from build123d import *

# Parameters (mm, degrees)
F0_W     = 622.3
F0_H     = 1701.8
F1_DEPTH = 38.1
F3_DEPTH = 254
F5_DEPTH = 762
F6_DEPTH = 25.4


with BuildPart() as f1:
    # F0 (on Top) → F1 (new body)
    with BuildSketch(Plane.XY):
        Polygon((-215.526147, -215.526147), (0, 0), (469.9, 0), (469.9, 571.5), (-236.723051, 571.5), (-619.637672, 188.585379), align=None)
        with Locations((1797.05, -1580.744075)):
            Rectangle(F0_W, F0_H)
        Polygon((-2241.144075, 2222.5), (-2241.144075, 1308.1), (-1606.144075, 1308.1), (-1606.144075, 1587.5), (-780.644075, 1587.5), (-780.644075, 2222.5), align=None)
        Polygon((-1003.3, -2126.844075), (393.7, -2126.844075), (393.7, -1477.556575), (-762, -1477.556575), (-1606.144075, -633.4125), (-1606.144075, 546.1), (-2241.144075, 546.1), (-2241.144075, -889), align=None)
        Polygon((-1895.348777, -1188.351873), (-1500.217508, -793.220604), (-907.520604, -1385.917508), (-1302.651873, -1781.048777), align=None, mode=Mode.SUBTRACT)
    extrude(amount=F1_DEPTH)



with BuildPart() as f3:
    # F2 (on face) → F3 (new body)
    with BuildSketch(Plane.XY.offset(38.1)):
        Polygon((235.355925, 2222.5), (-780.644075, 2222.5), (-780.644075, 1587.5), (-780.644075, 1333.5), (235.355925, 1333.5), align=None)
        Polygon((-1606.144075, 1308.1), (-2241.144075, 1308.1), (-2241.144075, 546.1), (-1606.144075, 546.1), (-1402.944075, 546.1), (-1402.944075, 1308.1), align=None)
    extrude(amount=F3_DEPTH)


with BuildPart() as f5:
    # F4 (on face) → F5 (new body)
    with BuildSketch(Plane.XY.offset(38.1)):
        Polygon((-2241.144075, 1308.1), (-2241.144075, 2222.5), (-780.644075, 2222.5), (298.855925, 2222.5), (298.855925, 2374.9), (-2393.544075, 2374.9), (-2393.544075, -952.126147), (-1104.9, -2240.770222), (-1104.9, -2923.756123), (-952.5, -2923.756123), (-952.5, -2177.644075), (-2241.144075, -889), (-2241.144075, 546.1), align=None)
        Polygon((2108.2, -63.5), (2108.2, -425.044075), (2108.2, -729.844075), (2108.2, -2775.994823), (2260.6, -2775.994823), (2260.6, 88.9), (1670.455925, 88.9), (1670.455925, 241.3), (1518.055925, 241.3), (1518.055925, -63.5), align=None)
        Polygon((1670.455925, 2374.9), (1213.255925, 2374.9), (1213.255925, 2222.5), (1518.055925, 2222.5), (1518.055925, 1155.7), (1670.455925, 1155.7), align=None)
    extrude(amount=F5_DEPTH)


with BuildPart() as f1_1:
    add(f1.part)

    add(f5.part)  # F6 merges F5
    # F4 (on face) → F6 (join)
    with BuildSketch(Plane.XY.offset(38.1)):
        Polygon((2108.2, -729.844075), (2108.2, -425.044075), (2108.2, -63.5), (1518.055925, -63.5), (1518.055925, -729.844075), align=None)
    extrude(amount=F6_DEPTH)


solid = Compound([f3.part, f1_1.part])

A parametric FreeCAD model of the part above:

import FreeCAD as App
import Part
import Sketcher
from FreeCAD import Vector
Q = App.Units.Quantity

doc = App.newDocument("Part")
body = doc.addObject("PartDesign::Body", "Body")
body.AllowCompound = True

sketch1 = body.newObject("Sketcher::SketchObject", "Sketch")
sketch1.AttachmentSupport = (doc.getObject("XY_Plane"), [""])
sketch1.MapMode = "FlatFace"
sketch1.addGeometry(Part.LineSegment(Vector(-216, -216, 0), Vector(0, 0, 0)), False)
sketch1.addGeometry(Part.LineSegment(Vector(0, 0, 0), Vector(470, 0, 0)), False)
sketch1.addGeometry(Part.LineSegment(Vector(470, 0, 0), Vector(470, 572, 0)), False)
sketch1.addGeometry(Part.LineSegment(Vector(470, 572, 0), Vector(-237, 572, 0)), False)
sketch1.addGeometry(Part.LineSegment(Vector(-237, 572, 0), Vector(-620, 189, 0)), False)
sketch1.addGeometry(Part.LineSegment(Vector(-620, 189, 0), Vector(-216, -216, 0)), False)
sketch1.addGeometry(Part.LineSegment(Vector(1486, -730, 0), Vector(1486, -2432, 0)), False)
sketch1.addGeometry(Part.LineSegment(Vector(1486, -2432, 0), Vector(2108, -2432, 0)), False)
sketch1.addGeometry(Part.LineSegment(Vector(2108, -2432, 0), Vector(2108, -730, 0)), False)
sketch1.addGeometry(Part.LineSegment(Vector(2108, -730, 0), Vector(1486, -730, 0)), False)
sketch1.addGeometry(Part.LineSegment(Vector(-2241, 2222, 0), Vector(-2241, 1308, 0)), False)
sketch1.addGeometry(Part.LineSegment(Vector(-2241, 1308, 0), Vector(-1606, 1308, 0)), False)
sketch1.addGeometry(Part.LineSegment(Vector(-1606, 1308, 0), Vector(-1606, 1588, 0)), False)
sketch1.addGeometry(Part.LineSegment(Vector(-1606, 1588, 0), Vector(-781, 1588, 0)), False)
sketch1.addGeometry(Part.LineSegment(Vector(-781, 1588, 0), Vector(-781, 2222, 0)), False)
sketch1.addGeometry(Part.LineSegment(Vector(-781, 2222, 0), Vector(-2241, 2222, 0)), False)
sketch1.addGeometry(Part.LineSegment(Vector(-1003, -2127, 0), Vector(394, -2127, 0)), False)
sketch1.addGeometry(Part.LineSegment(Vector(394, -2127, 0), Vector(394, -1478, 0)), False)
sketch1.addGeometry(Part.LineSegment(Vector(394, -1478, 0), Vector(-762, -1478, 0)), False)
sketch1.addGeometry(Part.LineSegment(Vector(-762, -1478, 0), Vector(-1606, -633, 0)), False)
sketch1.addGeometry(Part.LineSegment(Vector(-1606, -633, 0), Vector(-1606, 546, 0)), False)
sketch1.addGeometry(Part.LineSegment(Vector(-1606, 546, 0), Vector(-2241, 546, 0)), False)
sketch1.addGeometry(Part.LineSegment(Vector(-2241, 546, 0), Vector(-2241, -889, 0)), False)
sketch1.addGeometry(Part.LineSegment(Vector(-2241, -889, 0), Vector(-1003, -2127, 0)), False)
sketch1.addGeometry(Part.LineSegment(Vector(-1303, -1781, 0), Vector(-1895, -1188, 0)), False)
sketch1.addGeometry(Part.LineSegment(Vector(-1895, -1188, 0), Vector(-1500, -793, 0)), False)
sketch1.addGeometry(Part.LineSegment(Vector(-1500, -793, 0), Vector(-908, -1386, 0)), False)
sketch1.addGeometry(Part.LineSegment(Vector(-908, -1386, 0), Vector(-1303, -1781, 0)), False)
sketch1.addConstraint(Sketcher.Constraint("Coincident", 0, 2, 1, 1))
sketch1.addConstraint(Sketcher.Constraint("Coincident", 1, 2, 2, 1))
sketch1.addConstraint(Sketcher.Constraint("Coincident", 2, 2, 3, 1))
sketch1.addConstraint(Sketcher.Constraint("Coincident", 3, 2, 4, 1))
sketch1.addConstraint(Sketcher.Constraint("Coincident", 4, 2, 5, 1))
sketch1.addConstraint(Sketcher.Constraint("Coincident", 5, 2, 0, 1))
sketch1.addConstraint(Sketcher.Constraint("Coincident", 6, 2, 7, 1))
sketch1.addConstraint(Sketcher.Constraint("Coincident", 7, 2, 8, 1))
sketch1.addConstraint(Sketcher.Constraint("Coincident", 8, 2, 9, 1))
sketch1.addConstraint(Sketcher.Constraint("Coincident", 9, 2, 6, 1))
sketch1.addConstraint(Sketcher.Constraint("Coincident", 10, 2, 11, 1))
sketch1.addConstraint(Sketcher.Constraint("Coincident", 11, 2, 12, 1))
sketch1.addConstraint(Sketcher.Constraint("Coincident", 12, 2, 13, 1))
sketch1.addConstraint(Sketcher.Constraint("Coincident", 13, 2, 14, 1))
sketch1.addConstraint(Sketcher.Constraint("Coincident", 14, 2, 15, 1))
sketch1.addConstraint(Sketcher.Constraint("Coincident", 15, 2, 10, 1))
sketch1.addConstraint(Sketcher.Constraint("Coincident", 16, 2, 17, 1))
sketch1.addConstraint(Sketcher.Constraint("Coincident", 17, 2, 18, 1))
sketch1.addConstraint(Sketcher.Constraint("Coincident", 18, 2, 19, 1))
sketch1.addConstraint(Sketcher.Constraint("Coincident", 19, 2, 20, 1))
sketch1.addConstraint(Sketcher.Constraint("Coincident", 20, 2, 21, 1))
sketch1.addConstraint(Sketcher.Constraint("Coincident", 21, 2, 22, 1))
sketch1.addConstraint(Sketcher.Constraint("Coincident", 22, 2, 23, 1))
sketch1.addConstraint(Sketcher.Constraint("Coincident", 23, 2, 16, 1))
sketch1.addConstraint(Sketcher.Constraint("Coincident", 24, 2, 25, 1))
sketch1.addConstraint(Sketcher.Constraint("Coincident", 25, 2, 26, 1))
sketch1.addConstraint(Sketcher.Constraint("Coincident", 26, 2, 27, 1))
sketch1.addConstraint(Sketcher.Constraint("Coincident", 27, 2, 24, 1))
sketch1.addConstraint(Sketcher.Constraint("Horizontal", 1))
sketch1.addConstraint(Sketcher.Constraint("Vertical", 2))
sketch1.addConstraint(Sketcher.Constraint("Horizontal", 3))
sketch1.addConstraint(Sketcher.Constraint("Vertical", 6))
sketch1.addConstraint(Sketcher.Constraint("Horizontal", 7))
sketch1.addConstraint(Sketcher.Constraint("Vertical", 8))
sketch1.addConstraint(Sketcher.Constraint("Horizontal", 9))
sketch1.addConstraint(Sketcher.Constraint("Vertical", 10))
sketch1.addConstraint(Sketcher.Constraint("Horizontal", 11))
sketch1.addConstraint(Sketcher.Constraint("Vertical", 12))
sketch1.addConstraint(Sketcher.Constraint("Horizontal", 13))
sketch1.addConstraint(Sketcher.Constraint("Vertical", 14))
sketch1.addConstraint(Sketcher.Constraint("Horizontal", 15))
sketch1.addConstraint(Sketcher.Constraint("Horizontal", 16))
sketch1.addConstraint(Sketcher.Constraint("Vertical", 17))
sketch1.addConstraint(Sketcher.Constraint("Horizontal", 18))
sketch1.addConstraint(Sketcher.Constraint("Vertical", 20))
sketch1.addConstraint(Sketcher.Constraint("Horizontal", 21))
sketch1.addConstraint(Sketcher.Constraint("Vertical", 22))
sketch1.addConstraint(Sketcher.Constraint("Coincident", 0, 2, -1, 1))
sketch1.addConstraint(Sketcher.Constraint("Parallel", 0, 4))
sketch1.addConstraint(Sketcher.Constraint("Perpendicular", 4, 5))
sketch1.addConstraint(Sketcher.Constraint("Parallel", 5, 19))
sketch1.addConstraint(Sketcher.Constraint("Parallel", 19, 23))
sketch1.addConstraint(Sketcher.Constraint("Parallel", 23, 24))
sketch1.addConstraint(Sketcher.Constraint("Perpendicular", 24, 25))
sketch1.addConstraint(Sketcher.Constraint("Perpendicular", 25, 26))
sketch1.addConstraint(Sketcher.Constraint("Perpendicular", 26, 27))
sketch1.addConstraint(Sketcher.Constraint("Vertical", 12, 2, 19, 2))
sketch1.addConstraint(Sketcher.Constraint("Vertical", 15, 2, 21, 2))
sketch1.addConstraint(Sketcher.Constraint("Equal", 21, 14))
sketch1.addConstraint(Sketcher.Constraint("DistanceX", 11, 1, 11, 2, Q("25 in")))
sketch1.addConstraint(Sketcher.Constraint("DistanceX", 16, 1, 16, 2, Q("55 in")))
sketch1.addConstraint(Sketcher.Constraint("DistanceY", 6, 2, 6, 1, Q("67 in")))
sketch1.addConstraint(Sketcher.Constraint("DistanceY", 10, 2, 10, 1, Q("36 in")))
sketch1.addConstraint(Sketcher.Constraint("Distance", 0, Q("12 in")))
sketch1.addConstraint(Sketcher.Constraint("Distance", 19, Q("47 in")))
sketch1.addConstraint(Sketcher.Constraint("Distance", 24, Q("33 in")))
sketch1.addConstraint(Sketcher.Constraint("Distance", 25, Q("22 in")))
sketch1.addConstraint(Sketcher.Constraint("DistanceX", 1, 1, 1, 2, Q("18.5 in")))
sketch1.addConstraint(Sketcher.Constraint("DistanceX", 7, 1, 7, 2, Q("24.5 in")))
sketch1.addConstraint(Sketcher.Constraint("DistanceX", 13, 1, 13, 2, Q("32.5 in")))
sketch1.addConstraint(Sketcher.Constraint("DistanceX", 18, 2, 18, 1, Q("45.5 in")))
sketch1.addConstraint(Sketcher.Constraint("DistanceY", 2, 1, 2, 2, Q("22.5 in")))
sketch1.addConstraint(Sketcher.Constraint("DistanceY", 22, 2, 22, 1, Q("56.5 in")))
sketch1.addConstraint(Sketcher.Constraint("DistanceX", -1, 1, 7, 2, Q("83 in")))
sketch1.addConstraint(Sketcher.Constraint("DistanceX", 18, 2, -1, 1, Q("30 in")))
sketch1.addConstraint(Sketcher.Constraint("DistanceY", 22, 2, -1, 1, Q("35 in")))
sketch1.addConstraint(Sketcher.Constraint("Angle", 0, Q("45 deg")))
sketch1.addConstraint(Sketcher.Constraint("DistanceY", 3, 2, 10, 2, Q("29 in")))
sketch1.addConstraint(Sketcher.Constraint("DistanceY", 6, 2, 16, 2, Q("12 in")))
sketch1.addConstraint(Sketcher.Constraint("Distance", 5, Q("22.5 in")))
sketch1.addConstraint(Sketcher.Constraint("DistanceY", 17, 1, 17, 2, Q("25.5625 in")))
sketch1.addConstraint(Sketcher.Constraint("DistanceX", 22, 2, 24, 2, Q("345.795298 mm")))
sketch1.addConstraint(Sketcher.Constraint("DistanceY", 18, 2, 24, 2, Q("289.204702 mm")))
pad1 = body.newObject("PartDesign::Pad", "Pad")
pad1.Profile = sketch1
pad1.Length = Q("1.5 in")
body2 = doc.addObject("PartDesign::Body", "Body001")
body2.AllowCompound = True

sketch2 = body2.newObject("Sketcher::SketchObject", "Sketch001")
sketch2.AttachmentSupport = (doc.getObject("XY_Plane001"), [""])
sketch2.MapMode = "FlatFace"
sketch2.AttachmentOffset = App.Placement(Vector(0, 0, 1.5 * 25.4), App.Rotation())
sketch2.addGeometry(Part.LineSegment(Vector(235, 2222, 0), Vector(-781, 2222, 0)), False)
sketch2.addGeometry(Part.LineSegment(Vector(-781, 2222, 0), Vector(-781, 1334, 0)), False)
sketch2.addGeometry(Part.LineSegment(Vector(-781, 1334, 0), Vector(235, 1334, 0)), False)
sketch2.addGeometry(Part.LineSegment(Vector(235, 1334, 0), Vector(235, 2222, 0)), False)
sketch2.addGeometry(Part.LineSegment(Vector(-2241, 1308, 0), Vector(-2241, 546, 0)), False)
sketch2.addGeometry(Part.LineSegment(Vector(-2241, 546, 0), Vector(-1403, 546, 0)), False)
sketch2.addGeometry(Part.LineSegment(Vector(-1403, 546, 0), Vector(-1403, 1308, 0)), False)
sketch2.addGeometry(Part.LineSegment(Vector(-1403, 1308, 0), Vector(-2241, 1308, 0)), False)
sketch2.addConstraint(Sketcher.Constraint("Coincident", 0, 2, 1, 1))
sketch2.addConstraint(Sketcher.Constraint("Coincident", 1, 2, 2, 1))
sketch2.addConstraint(Sketcher.Constraint("Coincident", 2, 2, 3, 1))
sketch2.addConstraint(Sketcher.Constraint("Coincident", 3, 2, 0, 1))
sketch2.addConstraint(Sketcher.Constraint("Coincident", 4, 2, 5, 1))
sketch2.addConstraint(Sketcher.Constraint("Coincident", 5, 2, 6, 1))
sketch2.addConstraint(Sketcher.Constraint("Coincident", 6, 2, 7, 1))
sketch2.addConstraint(Sketcher.Constraint("Coincident", 7, 2, 4, 1))
sketch2.addConstraint(Sketcher.Constraint("Horizontal", 0))
sketch2.addConstraint(Sketcher.Constraint("Vertical", 1))
sketch2.addConstraint(Sketcher.Constraint("Horizontal", 2))
sketch2.addConstraint(Sketcher.Constraint("Vertical", 3))
sketch2.addConstraint(Sketcher.Constraint("Vertical", 4))
sketch2.addConstraint(Sketcher.Constraint("Horizontal", 5))
sketch2.addConstraint(Sketcher.Constraint("Vertical", 6))
sketch2.addConstraint(Sketcher.Constraint("Horizontal", 7))
sketch2.addConstraint(Sketcher.Constraint("DistanceX", 0, 2, 0, 1, Q("40 in")))
sketch2.addConstraint(Sketcher.Constraint("DistanceX", 5, 1, 5, 2, Q("33 in")))
sketch2.addConstraint(Sketcher.Constraint("DistanceY", 1, 2, 1, 1, Q("35 in")))
sketch2.addConstraint(Sketcher.Constraint("DistanceY", 4, 2, 4, 1, Q("30 in")))
sketch2.addConstraint(Sketcher.Constraint("DistanceY", 4, 2, 1, 2, Q("31 in")))
sketch2.addConstraint(Sketcher.Constraint("DistanceY", -1, 1, 0, 2, Q("87.5 in")))
sketch2.addConstraint(Sketcher.Constraint("DistanceX", 4, 2, 1, 2, Q("57.5 in")))
sketch2.addConstraint(Sketcher.Constraint("DistanceX", 0, 2, -1, 1, Q("780.644075 mm")))
pad2 = body2.newObject("PartDesign::Pad", "Pad001")
pad2.Profile = sketch2
pad2.Length = Q("10 in")
body3 = doc.addObject("PartDesign::Body", "Body002")
body3.AllowCompound = True

sketch3 = body3.newObject("Sketcher::SketchObject", "Sketch002")
sketch3.AttachmentSupport = (doc.getObject("XY_Plane002"), [""])
sketch3.MapMode = "FlatFace"
sketch3.AttachmentOffset = App.Placement(Vector(0, 0, 1.5 * 25.4), App.Rotation())
sketch3.addGeometry(Part.LineSegment(Vector(-2241, 2222, 0), Vector(299, 2222, 0)), False)
sketch3.addGeometry(Part.LineSegment(Vector(299, 2222, 0), Vector(299, 2375, 0)), False)
sketch3.addGeometry(Part.LineSegment(Vector(299, 2375, 0), Vector(-2394, 2375, 0)), False)
sketch3.addGeometry(Part.LineSegment(Vector(-2394, 2375, 0), Vector(-2394, -952, 0)), False)
sketch3.addGeometry(Part.LineSegment(Vector(-2394, -952, 0), Vector(-1105, -2241, 0)), False)
sketch3.addGeometry(Part.LineSegment(Vector(-1105, -2241, 0), Vector(-1105, -2924, 0)), False)
sketch3.addGeometry(Part.LineSegment(Vector(-1105, -2924, 0), Vector(-952, -2924, 0)), False)
sketch3.addGeometry(Part.LineSegment(Vector(-952, -2924, 0), Vector(-952, -2178, 0)), False)
sketch3.addGeometry(Part.LineSegment(Vector(-952, -2178, 0), Vector(-2241, -889, 0)), False)
sketch3.addGeometry(Part.LineSegment(Vector(-2241, -889, 0), Vector(-2241, 2222, 0)), False)
sketch3.addGeometry(Part.LineSegment(Vector(2108, -64, 0), Vector(2108, -2776, 0)), False)
sketch3.addGeometry(Part.LineSegment(Vector(2108, -2776, 0), Vector(2261, -2776, 0)), False)
sketch3.addGeometry(Part.LineSegment(Vector(2261, -2776, 0), Vector(2261, 89, 0)), False)
sketch3.addGeometry(Part.LineSegment(Vector(2261, 89, 0), Vector(1670, 89, 0)), False)
sketch3.addGeometry(Part.LineSegment(Vector(1670, 89, 0), Vector(1670, 241, 0)), False)
sketch3.addGeometry(Part.LineSegment(Vector(1670, 241, 0), Vector(1518, 241, 0)), False)
sketch3.addGeometry(Part.LineSegment(Vector(1518, 241, 0), Vector(1518, -64, 0)), False)
sketch3.addGeometry(Part.LineSegment(Vector(1518, -64, 0), Vector(2108, -64, 0)), False)
sketch3.addGeometry(Part.LineSegment(Vector(1670, 2375, 0), Vector(1213, 2375, 0)), False)
sketch3.addGeometry(Part.LineSegment(Vector(1213, 2375, 0), Vector(1213, 2222, 0)), False)
sketch3.addGeometry(Part.LineSegment(Vector(1213, 2222, 0), Vector(1518, 2222, 0)), False)
sketch3.addGeometry(Part.LineSegment(Vector(1518, 2222, 0), Vector(1518, 1156, 0)), False)
sketch3.addGeometry(Part.LineSegment(Vector(1518, 1156, 0), Vector(1670, 1156, 0)), False)
sketch3.addGeometry(Part.LineSegment(Vector(1670, 1156, 0), Vector(1670, 2375, 0)), False)
sketch3.addConstraint(Sketcher.Constraint("Coincident", 0, 2, 1, 1))
sketch3.addConstraint(Sketcher.Constraint("Coincident", 1, 2, 2, 1))
sketch3.addConstraint(Sketcher.Constraint("Coincident", 2, 2, 3, 1))
sketch3.addConstraint(Sketcher.Constraint("Coincident", 3, 2, 4, 1))
sketch3.addConstraint(Sketcher.Constraint("Coincident", 4, 2, 5, 1))
sketch3.addConstraint(Sketcher.Constraint("Coincident", 5, 2, 6, 1))
sketch3.addConstraint(Sketcher.Constraint("Coincident", 6, 2, 7, 1))
sketch3.addConstraint(Sketcher.Constraint("Coincident", 7, 2, 8, 1))
sketch3.addConstraint(Sketcher.Constraint("Coincident", 8, 2, 9, 1))
sketch3.addConstraint(Sketcher.Constraint("Coincident", 9, 2, 0, 1))
sketch3.addConstraint(Sketcher.Constraint("Coincident", 10, 2, 11, 1))
sketch3.addConstraint(Sketcher.Constraint("Coincident", 11, 2, 12, 1))
sketch3.addConstraint(Sketcher.Constraint("Coincident", 12, 2, 13, 1))
sketch3.addConstraint(Sketcher.Constraint("Coincident", 13, 2, 14, 1))
sketch3.addConstraint(Sketcher.Constraint("Coincident", 14, 2, 15, 1))
sketch3.addConstraint(Sketcher.Constraint("Coincident", 15, 2, 16, 1))
sketch3.addConstraint(Sketcher.Constraint("Coincident", 16, 2, 17, 1))
sketch3.addConstraint(Sketcher.Constraint("Coincident", 17, 2, 10, 1))
sketch3.addConstraint(Sketcher.Constraint("Coincident", 18, 2, 19, 1))
sketch3.addConstraint(Sketcher.Constraint("Coincident", 19, 2, 20, 1))
sketch3.addConstraint(Sketcher.Constraint("Coincident", 20, 2, 21, 1))
sketch3.addConstraint(Sketcher.Constraint("Coincident", 21, 2, 22, 1))
sketch3.addConstraint(Sketcher.Constraint("Coincident", 22, 2, 23, 1))
sketch3.addConstraint(Sketcher.Constraint("Coincident", 23, 2, 18, 1))
sketch3.addConstraint(Sketcher.Constraint("Horizontal", 0))
sketch3.addConstraint(Sketcher.Constraint("Vertical", 1))
sketch3.addConstraint(Sketcher.Constraint("Horizontal", 2))
sketch3.addConstraint(Sketcher.Constraint("Vertical", 3))
sketch3.addConstraint(Sketcher.Constraint("Vertical", 5))
sketch3.addConstraint(Sketcher.Constraint("Horizontal", 6))
sketch3.addConstraint(Sketcher.Constraint("Vertical", 7))
sketch3.addConstraint(Sketcher.Constraint("Vertical", 9))
sketch3.addConstraint(Sketcher.Constraint("Vertical", 10))
sketch3.addConstraint(Sketcher.Constraint("Horizontal", 11))
sketch3.addConstraint(Sketcher.Constraint("Vertical", 12))
sketch3.addConstraint(Sketcher.Constraint("Horizontal", 13))
sketch3.addConstraint(Sketcher.Constraint("Vertical", 14))
sketch3.addConstraint(Sketcher.Constraint("Horizontal", 15))
sketch3.addConstraint(Sketcher.Constraint("Vertical", 16))
sketch3.addConstraint(Sketcher.Constraint("Horizontal", 17))
sketch3.addConstraint(Sketcher.Constraint("Horizontal", 18))
sketch3.addConstraint(Sketcher.Constraint("Vertical", 19))
sketch3.addConstraint(Sketcher.Constraint("Horizontal", 20))
sketch3.addConstraint(Sketcher.Constraint("Vertical", 21))
sketch3.addConstraint(Sketcher.Constraint("Horizontal", 22))
sketch3.addConstraint(Sketcher.Constraint("Vertical", 23))
sketch3.addConstraint(Sketcher.Constraint("Parallel", 4, 8))
sketch3.addConstraint(Sketcher.Constraint("Horizontal", 2, 2, 18, 2))
sketch3.addConstraint(Sketcher.Constraint("Horizontal", 9, 2, 19, 2))
sketch3.addConstraint(Sketcher.Constraint("Vertical", 16, 2, 20, 2))
sketch3.addConstraint(Sketcher.Constraint("Vertical", 14, 2, 22, 2))
sketch3.addConstraint(Sketcher.Constraint("Equal", 6, 11))
sketch3.addConstraint(Sketcher.Constraint("Equal", 11, 15))
sketch3.addConstraint(Sketcher.Constraint("Equal", 22, 1))
sketch3.addConstraint(Sketcher.Constraint("Equal", 1, 14))
sketch3.addConstraint(Sketcher.Constraint("Equal", 20, 16))
sketch3.addConstraint(Sketcher.Constraint("Equal", 4, 8))
sketch3.addConstraint(Sketcher.Constraint("DistanceX", 0, 1, 0, 2, Q("100 in")))
sketch3.addConstraint(Sketcher.Constraint("DistanceX", 2, 2, 2, 1, Q("106 in")))
sketch3.addConstraint(Sketcher.Constraint("DistanceX", 18, 2, 18, 1, Q("18 in")))
sketch3.addConstraint(Sketcher.Constraint("DistanceY", 21, 2, 21, 1, Q("42 in")))
sketch3.addConstraint(Sketcher.Constraint("DistanceY", 9, 1, 9, 2, Q("122.5 in")))
sketch3.addConstraint(Sketcher.Constraint("DistanceY", 8, 2, -1, 1, Q("35 in")))
sketch3.addConstraint(Sketcher.Constraint("DistanceX", -1, 1, 10, 2, Q("83 in")))
sketch3.addConstraint(Sketcher.Constraint("Angle", 4, Q("-45 deg")))
sketch3.addConstraint(Sketcher.Constraint("DistanceY", 12, 2, 0, 2, Q("84 in")))
sketch3.addConstraint(Sketcher.Constraint("DistanceX", 0, 2, 13, 2, Q("54 in")))
sketch3.addConstraint(Sketcher.Constraint("DistanceX", 4, 2, -1, 1, Q("43.5 in")))
sketch3.addConstraint(Sketcher.Constraint("DistanceY", 5, 2, 5, 1, Q("682.985901 mm")))
sketch3.addConstraint(Sketcher.Constraint("DistanceY", 4, 2, -1, 1, Q("88.2193001 in")))
sketch3.addConstraint(Sketcher.Constraint("DistanceY", 7, 1, 7, 2, Q("746.112048 mm")))
sketch3.addConstraint(Sketcher.Constraint("DistanceY", 6, 2, 10, 2, Q("147.7613 mm")))
pad3 = body3.newObject("PartDesign::Pad", "Pad002")
pad3.Profile = sketch3
pad3.Length = Q("30 in")
body.AllowCompound = True
doc.recompute()

boolean = body.newObject("PartDesign::Boolean", "Boolean")
boolean.Type = "Fuse"
boolean.addObjects([body3])

sketch4 = body.newObject("Sketcher::SketchObject", "Sketch003")
sketch4.AttachmentSupport = (doc.getObject("XY_Plane"), [""])
sketch4.MapMode = "FlatFace"
sketch4.AttachmentOffset = App.Placement(Vector(0, 0, 1.5 * 25.4), App.Rotation())
sketch4.addGeometry(Part.LineSegment(Vector(2108, -730, 0), Vector(2108, -64, 0)), False)
sketch4.addGeometry(Part.LineSegment(Vector(2108, -64, 0), Vector(1518, -64, 0)), False)
sketch4.addGeometry(Part.LineSegment(Vector(1518, -64, 0), Vector(1518, -730, 0)), False)
sketch4.addGeometry(Part.LineSegment(Vector(1518, -730, 0), Vector(2108, -730, 0)), False)
sketch4.addConstraint(Sketcher.Constraint("Coincident", 0, 2, 1, 1))
sketch4.addConstraint(Sketcher.Constraint("Coincident", 1, 2, 2, 1))
sketch4.addConstraint(Sketcher.Constraint("Coincident", 2, 2, 3, 1))
sketch4.addConstraint(Sketcher.Constraint("Coincident", 3, 2, 0, 1))
sketch4.addConstraint(Sketcher.Constraint("Vertical", 0))
sketch4.addConstraint(Sketcher.Constraint("Horizontal", 1))
sketch4.addConstraint(Sketcher.Constraint("Vertical", 2))
sketch4.addConstraint(Sketcher.Constraint("Horizontal", 3))
sketch4.addConstraint(Sketcher.Constraint("DistanceX", -1, 1, 0, 2, Q("83 in")))
sketch4.addConstraint(Sketcher.Constraint("DistanceY", 0, 2, -1, 1, Q("2.5 in")))
sketch4.addConstraint(Sketcher.Constraint("DistanceX", 1, 2, 1, 1, Q("590.144075 mm")))
sketch4.addConstraint(Sketcher.Constraint("DistanceY", 0, 1, 0, 2, Q("666.344075 mm")))
pad4 = body.newObject("PartDesign::Pad", "Pad003")
pad4.Profile = sketch4
pad4.Length = Q("1 in")

doc.recompute()
